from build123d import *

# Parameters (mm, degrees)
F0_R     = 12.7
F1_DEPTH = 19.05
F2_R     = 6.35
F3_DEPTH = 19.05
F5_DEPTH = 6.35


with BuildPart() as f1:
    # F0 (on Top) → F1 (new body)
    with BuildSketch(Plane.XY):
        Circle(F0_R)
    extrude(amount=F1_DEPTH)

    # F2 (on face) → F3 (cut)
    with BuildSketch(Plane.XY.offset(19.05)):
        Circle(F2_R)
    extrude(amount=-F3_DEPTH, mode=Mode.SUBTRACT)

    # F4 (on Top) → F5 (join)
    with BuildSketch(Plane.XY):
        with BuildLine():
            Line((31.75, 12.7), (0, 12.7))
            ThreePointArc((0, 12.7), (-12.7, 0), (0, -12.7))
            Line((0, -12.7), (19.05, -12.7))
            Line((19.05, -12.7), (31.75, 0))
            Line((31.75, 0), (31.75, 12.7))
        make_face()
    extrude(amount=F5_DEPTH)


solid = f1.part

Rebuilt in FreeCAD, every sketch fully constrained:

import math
import FreeCAD as App
import Part
import Sketcher
from FreeCAD import Vector
Q = App.Units.Quantity

doc = App.newDocument("Part")
body = doc.addObject("PartDesign::Body", "Body")

# Sketch on XY plane
sketch1 = body.newObject("Sketcher::SketchObject", "Sketch")
sketch1.AttachmentSupport = (doc.getObject("XY_Plane"), [""])
sketch1.MapMode = "FlatFace"
sketch1.addGeometry(Part.Circle(Vector(0, 0, 0), Vector(0, 0, 1), 12.7), False)
sketch1.addConstraint(Sketcher.Constraint("Coincident", 0, 3, -1, 1))
sketch1.addConstraint(Sketcher.Constraint("Diameter", 0, Q("1 in")))
pad1 = body.newObject("PartDesign::Pad", "Pad")
pad1.Profile = sketch1
pad1.Length = Q("0.75 in")

# Sketch on XY plane
sketch2 = body.newObject("Sketcher::SketchObject", "Sketch001")
sketch2.AttachmentSupport = (doc.getObject("XY_Plane"), [""])
sketch2.MapMode = "FlatFace"
sketch2.AttachmentOffset = App.Placement(Vector(0, 0, 0.75 * 25.4), App.Rotation())
sketch2.addGeometry(Part.Circle(Vector(0, 0, 0), Vector(0, 0, 1), 6.35), False)
sketch2.addConstraint(Sketcher.Constraint("Coincident", 0, 3, -1, 1))
sketch2.addConstraint(Sketcher.Constraint("Diameter", 0, Q("0.5 in")))
pocket1 = body.newObject("PartDesign::Pocket", "Pocket")
pocket1.Profile = sketch2
pocket1.Length = Q("0.75 in")

# Sketch on XY plane
sketch3 = body.newObject("Sketcher::SketchObject", "Sketch002")
sketch3.AttachmentSupport = (doc.getObject("XY_Plane"), [""])
sketch3.MapMode = "FlatFace"
sketch3.addGeometry(Part.LineSegment(Vector(31.75, 12.7, 0), Vector(0, 12.7, 0)), False)
sketch3.addGeometry(Part.ArcOfCircle(Part.Circle(Vector(0, 0, 0), Vector(0, 0, 1), 12.7), math.radians(90), math.radians(270)), False)
sketch3.addGeometry(Part.LineSegment(Vector(0, -12.7, 0), Vector(19.05, -12.7, 0)), False)
sketch3.addGeometry(Part.LineSegment(Vector(19.05, -12.7, 0), Vector(31.75, 0, 0)), False)
sketch3.addGeometry(Part.LineSegment(Vector(31.75, 0, 0), Vector(31.75, 12.7, 0)), False)
sketch3.addConstraint(Sketcher.Constraint("Tangent", 0, 2, 1, 1))
sketch3.addConstraint(Sketcher.Constraint("Tangent", 1, 2, 2, 1))
sketch3.addConstraint(Sketcher.Constraint("Coincident", 2, 2, 3, 1))
sketch3.addConstraint(Sketcher.Constraint("Coincident", 3, 2, 4, 1))
sketch3.addConstraint(Sketcher.Constraint("Coincident", 4, 2, 0, 1))
sketch3.addConstraint(Sketcher.Constraint("Horizontal", 0))
sketch3.addConstraint(Sketcher.Constraint("Horizontal", 2))
sketch3.addConstraint(Sketcher.Constraint("Vertical", 4))
sketch3.addConstraint(Sketcher.Constraint("Coincident", 1, 3, -1, 1))
sketch3.addConstraint(Sketcher.Constraint("PointOnObject", 3, 2, -1))
sketch3.addConstraint(Sketcher.Constraint("Radius", 1, Q("0.5 in")))
sketch3.addConstraint(Sketcher.Constraint("Angle", 3, Q("45 deg")))
sketch3.addConstraint(Sketcher.Constraint("DistanceX", 0, 2, 0, 1, Q("1.25 in")))
pad2 = body.newObject("PartDesign::Pad", "Pad001")
pad2.Profile = sketch3
pad2.Length = Q("0.25 in")

doc.recompute()
